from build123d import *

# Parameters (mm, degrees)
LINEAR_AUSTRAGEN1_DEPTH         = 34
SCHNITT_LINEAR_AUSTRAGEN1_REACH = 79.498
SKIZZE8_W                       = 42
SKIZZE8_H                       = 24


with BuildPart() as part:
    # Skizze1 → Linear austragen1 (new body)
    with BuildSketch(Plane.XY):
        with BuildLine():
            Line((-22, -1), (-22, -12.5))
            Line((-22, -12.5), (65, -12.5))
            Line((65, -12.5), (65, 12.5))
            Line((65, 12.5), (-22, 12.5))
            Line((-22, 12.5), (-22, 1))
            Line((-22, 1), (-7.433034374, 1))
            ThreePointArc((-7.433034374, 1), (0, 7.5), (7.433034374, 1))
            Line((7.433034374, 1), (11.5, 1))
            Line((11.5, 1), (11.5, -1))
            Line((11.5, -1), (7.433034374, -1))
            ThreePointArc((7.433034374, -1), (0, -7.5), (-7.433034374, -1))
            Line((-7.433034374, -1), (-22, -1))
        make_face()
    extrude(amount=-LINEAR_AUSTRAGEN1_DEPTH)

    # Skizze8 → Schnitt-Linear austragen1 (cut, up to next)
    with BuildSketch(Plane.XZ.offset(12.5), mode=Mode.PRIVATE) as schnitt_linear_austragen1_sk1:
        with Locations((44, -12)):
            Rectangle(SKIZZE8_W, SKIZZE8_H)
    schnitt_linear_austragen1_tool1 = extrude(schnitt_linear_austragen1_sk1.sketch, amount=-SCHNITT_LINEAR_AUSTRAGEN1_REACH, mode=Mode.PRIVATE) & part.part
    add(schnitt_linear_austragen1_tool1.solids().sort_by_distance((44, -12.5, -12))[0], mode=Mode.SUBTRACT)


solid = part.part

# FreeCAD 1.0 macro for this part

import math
import FreeCAD as App
import Part
import Sketcher

V = App.Vector
Q = App.Units.Quantity

doc = App.newDocument("Part")
body = doc.addObject("PartDesign::Body", "Body")

# Sketch on XY plane
sketch1 = body.newObject("Sketcher::SketchObject", "Sketch")
sketch1.AttachmentSupport = (doc.getObject("XY_Plane"), [""])
sketch1.MapMode = "FlatFace"
sketch1.addGeometry(Part.LineSegment(V(-22, -1, 0), V(-22, -12.5, 0)), False)
sketch1.addGeometry(Part.LineSegment(V(-22, -12.5, 0), V(65, -12.5, 0)), False)
sketch1.addGeometry(Part.LineSegment(V(65, -12.5, 0), V(65, 12.5, 0)), False)
sketch1.addGeometry(Part.LineSegment(V(65, 12.5, 0), V(-22, 12.5, 0)), False)
sketch1.addGeometry(Part.LineSegment(V(-22, 12.5, 0), V(-22, 1, 0)), False)
sketch1.addGeometry(Part.LineSegment(V(-22, 1, 0), V(-7.4, 1, 0)), False)
sketch1.addGeometry(Part.ArcOfCircle(Part.Circle(V(0, 0, 0), V(0, 0, 1), 7.5), math.radians(8), math.radians(172)), False)
sketch1.addGeometry(Part.LineSegment(V(7.4, 1, 0), V(11.5, 1, 0)), False)
sketch1.addGeometry(Part.LineSegment(V(11.5, 1, 0), V(11.5, -1, 0)), False)
sketch1.addGeometry(Part.LineSegment(V(11.5, -1, 0), V(7.4, -1, 0)), False)
sketch1.addGeometry(Part.ArcOfCircle(Part.Circle(V(0, 0, 0), V(0, 0, 1), 7.5), math.radians(-172), math.radians(-8)), False)
sketch1.addGeometry(Part.LineSegment(V(-7.4, -1, 0), V(-22, -1, 0)), False)
sketch1.addConstraint(Sketcher.Constraint("Coincident", 0, 2, 1, 1))
sketch1.addConstraint(Sketcher.Constraint("Coincident", 1, 2, 2, 1))
sketch1.addConstraint(Sketcher.Constraint("Coincident", 2, 2, 3, 1))
sketch1.addConstraint(Sketcher.Constraint("Coincident", 3, 2, 4, 1))
sketch1.addConstraint(Sketcher.Constraint("Coincident", 4, 2, 5, 1))
sketch1.addConstraint(Sketcher.Constraint("Coincident", 5, 2, 6, 2))
sketch1.addConstraint(Sketcher.Constraint("Coincident", 6, 1, 7, 1))
sketch1.addConstraint(Sketcher.Constraint("Coincident", 7, 2, 8, 1))
sketch1.addConstraint(Sketcher.Constraint("Coincident", 8, 2, 9, 1))
sketch1.addConstraint(Sketcher.Constraint("Coincident", 9, 2, 10, 2))
sketch1.addConstraint(Sketcher.Constraint("Coincident", 10, 1, 11, 1))
sketch1.addConstraint(Sketcher.Constraint("Coincident", 11, 2, 0, 1))
sketch1.addConstraint(Sketcher.Constraint("Vertical", 0))
sketch1.addConstraint(Sketcher.Constraint("Horizontal", 1))
sketch1.addConstraint(Sketcher.Constraint("Vertical", 2))
sketch1.addConstraint(Sketcher.Constraint("Horizontal", 3))
sketch1.addConstraint(Sketcher.Constraint("Vertical", 4))
sketch1.addConstraint(Sketcher.Constraint("Horizontal", 5))
sketch1.addConstraint(Sketcher.Constraint("Horizontal", 7))
sketch1.addConstraint(Sketcher.Constraint("Vertical", 8))
sketch1.addConstraint(Sketcher.Constraint("Horizontal", 9))
sketch1.addConstraint(Sketcher.Constraint("Horizontal", 11))
sketch1.addConstraint(Sketcher.Constraint("Coincident", 6, 3, -1, 1))
sketch1.addConstraint(Sketcher.Constraint("Coincident", 10, 3, -1, 1))
sketch1.addConstraint(Sketcher.Constraint("Equal", 6, 10))
sketch1.addConstraint(Sketcher.Constraint("Symmetric", 0, 2, 3, 2, -1))
sketch1.addConstraint(Sketcher.Constraint("Horizontal", 5, 2, 6, 1))
sketch1.addConstraint(Sketcher.Constraint("Horizontal", 9, 2, 10, 1))
sketch1.addConstraint(Sketcher.Constraint("Vertical", 6, 1, 9, 2))
sketch1.addConstraint(Sketcher.Constraint("Radius", 6, Q("7.5 mm")))
sketch1.addConstraint(Sketcher.Constraint("DistanceX", 1, 1, 1, 2, Q("87 mm")))
sketch1.addConstraint(Sketcher.Constraint("DistanceY", 2, 1, 2, 2, Q("25 mm")))
sketch1.addConstraint(Sketcher.Constraint("DistanceY", 8, 2, 8, 1, Q("2 mm")))
sketch1.addConstraint(Sketcher.Constraint("DistanceX", 0, 2, -1, 1, Q("22 mm")))
sketch1.addConstraint(Sketcher.Constraint("DistanceX", -1, 1, 7, 2, Q("11.5 mm")))
pad1 = body.newObject("PartDesign::Pad", "Pad")
pad1.Profile = sketch1
pad1.Length = 34
pad1.Reversed = True

# Sketch on XZ plane
sketch2 = body.newObject("Sketcher::SketchObject", "Sketch001")
sketch2.AttachmentSupport = (doc.getObject("XZ_Plane"), [""])
sketch2.MapMode = "FlatFace"
sketch2.AttachmentOffset = App.Placement(V(0, 0, 12.5), App.Rotation())
sketch2.addGeometry(Part.LineSegment(V(23, 0, 0), V(23, -24, 0)), False)
sketch2.addGeometry(Part.LineSegment(V(23, -24, 0), V(65, -24, 0)), False)
sketch2.addGeometry(Part.LineSegment(V(65, -24, 0), V(65, 0, 0)), False)
sketch2.addGeometry(Part.LineSegment(V(65, 0, 0), V(23, 0, 0)), False)
sketch2.addConstraint(Sketcher.Constraint("Coincident", 0, 2, 1, 1))
sketch2.addConstraint(Sketcher.Constraint("Coincident", 1, 2, 2, 1))
sketch2.addConstraint(Sketcher.Constraint("Coincident", 2, 2, 3, 1))
sketch2.addConstraint(Sketcher.Constraint("Coincident", 3, 2, 0, 1))
sketch2.addConstraint(Sketcher.Constraint("Vertical", 0))
sketch2.addConstraint(Sketcher.Constraint("Horizontal", 1))
sketch2.addConstraint(Sketcher.Constraint("Vertical", 2))
sketch2.addConstraint(Sketcher.Constraint("Horizontal", 3))
sketch2.addConstraint(Sketcher.Constraint("PointOnObject", 2, 2, -1))
sketch2.addConstraint(Sketcher.Constraint("DistanceX", 1, 1, 1, 2, Q("42 mm")))
sketch2.addConstraint(Sketcher.Constraint("DistanceY", 0, 2, 0, 1, Q("24 mm")))
sketch2.addConstraint(Sketcher.Constraint("DistanceX", -1, 1, 0, 2, Q("23 mm")))
pocket1 = body.newObject("PartDesign::Pocket", "Pocket")
pocket1.Profile = sketch2
pocket1.Type = "UpToFirst"

doc.recompute()
